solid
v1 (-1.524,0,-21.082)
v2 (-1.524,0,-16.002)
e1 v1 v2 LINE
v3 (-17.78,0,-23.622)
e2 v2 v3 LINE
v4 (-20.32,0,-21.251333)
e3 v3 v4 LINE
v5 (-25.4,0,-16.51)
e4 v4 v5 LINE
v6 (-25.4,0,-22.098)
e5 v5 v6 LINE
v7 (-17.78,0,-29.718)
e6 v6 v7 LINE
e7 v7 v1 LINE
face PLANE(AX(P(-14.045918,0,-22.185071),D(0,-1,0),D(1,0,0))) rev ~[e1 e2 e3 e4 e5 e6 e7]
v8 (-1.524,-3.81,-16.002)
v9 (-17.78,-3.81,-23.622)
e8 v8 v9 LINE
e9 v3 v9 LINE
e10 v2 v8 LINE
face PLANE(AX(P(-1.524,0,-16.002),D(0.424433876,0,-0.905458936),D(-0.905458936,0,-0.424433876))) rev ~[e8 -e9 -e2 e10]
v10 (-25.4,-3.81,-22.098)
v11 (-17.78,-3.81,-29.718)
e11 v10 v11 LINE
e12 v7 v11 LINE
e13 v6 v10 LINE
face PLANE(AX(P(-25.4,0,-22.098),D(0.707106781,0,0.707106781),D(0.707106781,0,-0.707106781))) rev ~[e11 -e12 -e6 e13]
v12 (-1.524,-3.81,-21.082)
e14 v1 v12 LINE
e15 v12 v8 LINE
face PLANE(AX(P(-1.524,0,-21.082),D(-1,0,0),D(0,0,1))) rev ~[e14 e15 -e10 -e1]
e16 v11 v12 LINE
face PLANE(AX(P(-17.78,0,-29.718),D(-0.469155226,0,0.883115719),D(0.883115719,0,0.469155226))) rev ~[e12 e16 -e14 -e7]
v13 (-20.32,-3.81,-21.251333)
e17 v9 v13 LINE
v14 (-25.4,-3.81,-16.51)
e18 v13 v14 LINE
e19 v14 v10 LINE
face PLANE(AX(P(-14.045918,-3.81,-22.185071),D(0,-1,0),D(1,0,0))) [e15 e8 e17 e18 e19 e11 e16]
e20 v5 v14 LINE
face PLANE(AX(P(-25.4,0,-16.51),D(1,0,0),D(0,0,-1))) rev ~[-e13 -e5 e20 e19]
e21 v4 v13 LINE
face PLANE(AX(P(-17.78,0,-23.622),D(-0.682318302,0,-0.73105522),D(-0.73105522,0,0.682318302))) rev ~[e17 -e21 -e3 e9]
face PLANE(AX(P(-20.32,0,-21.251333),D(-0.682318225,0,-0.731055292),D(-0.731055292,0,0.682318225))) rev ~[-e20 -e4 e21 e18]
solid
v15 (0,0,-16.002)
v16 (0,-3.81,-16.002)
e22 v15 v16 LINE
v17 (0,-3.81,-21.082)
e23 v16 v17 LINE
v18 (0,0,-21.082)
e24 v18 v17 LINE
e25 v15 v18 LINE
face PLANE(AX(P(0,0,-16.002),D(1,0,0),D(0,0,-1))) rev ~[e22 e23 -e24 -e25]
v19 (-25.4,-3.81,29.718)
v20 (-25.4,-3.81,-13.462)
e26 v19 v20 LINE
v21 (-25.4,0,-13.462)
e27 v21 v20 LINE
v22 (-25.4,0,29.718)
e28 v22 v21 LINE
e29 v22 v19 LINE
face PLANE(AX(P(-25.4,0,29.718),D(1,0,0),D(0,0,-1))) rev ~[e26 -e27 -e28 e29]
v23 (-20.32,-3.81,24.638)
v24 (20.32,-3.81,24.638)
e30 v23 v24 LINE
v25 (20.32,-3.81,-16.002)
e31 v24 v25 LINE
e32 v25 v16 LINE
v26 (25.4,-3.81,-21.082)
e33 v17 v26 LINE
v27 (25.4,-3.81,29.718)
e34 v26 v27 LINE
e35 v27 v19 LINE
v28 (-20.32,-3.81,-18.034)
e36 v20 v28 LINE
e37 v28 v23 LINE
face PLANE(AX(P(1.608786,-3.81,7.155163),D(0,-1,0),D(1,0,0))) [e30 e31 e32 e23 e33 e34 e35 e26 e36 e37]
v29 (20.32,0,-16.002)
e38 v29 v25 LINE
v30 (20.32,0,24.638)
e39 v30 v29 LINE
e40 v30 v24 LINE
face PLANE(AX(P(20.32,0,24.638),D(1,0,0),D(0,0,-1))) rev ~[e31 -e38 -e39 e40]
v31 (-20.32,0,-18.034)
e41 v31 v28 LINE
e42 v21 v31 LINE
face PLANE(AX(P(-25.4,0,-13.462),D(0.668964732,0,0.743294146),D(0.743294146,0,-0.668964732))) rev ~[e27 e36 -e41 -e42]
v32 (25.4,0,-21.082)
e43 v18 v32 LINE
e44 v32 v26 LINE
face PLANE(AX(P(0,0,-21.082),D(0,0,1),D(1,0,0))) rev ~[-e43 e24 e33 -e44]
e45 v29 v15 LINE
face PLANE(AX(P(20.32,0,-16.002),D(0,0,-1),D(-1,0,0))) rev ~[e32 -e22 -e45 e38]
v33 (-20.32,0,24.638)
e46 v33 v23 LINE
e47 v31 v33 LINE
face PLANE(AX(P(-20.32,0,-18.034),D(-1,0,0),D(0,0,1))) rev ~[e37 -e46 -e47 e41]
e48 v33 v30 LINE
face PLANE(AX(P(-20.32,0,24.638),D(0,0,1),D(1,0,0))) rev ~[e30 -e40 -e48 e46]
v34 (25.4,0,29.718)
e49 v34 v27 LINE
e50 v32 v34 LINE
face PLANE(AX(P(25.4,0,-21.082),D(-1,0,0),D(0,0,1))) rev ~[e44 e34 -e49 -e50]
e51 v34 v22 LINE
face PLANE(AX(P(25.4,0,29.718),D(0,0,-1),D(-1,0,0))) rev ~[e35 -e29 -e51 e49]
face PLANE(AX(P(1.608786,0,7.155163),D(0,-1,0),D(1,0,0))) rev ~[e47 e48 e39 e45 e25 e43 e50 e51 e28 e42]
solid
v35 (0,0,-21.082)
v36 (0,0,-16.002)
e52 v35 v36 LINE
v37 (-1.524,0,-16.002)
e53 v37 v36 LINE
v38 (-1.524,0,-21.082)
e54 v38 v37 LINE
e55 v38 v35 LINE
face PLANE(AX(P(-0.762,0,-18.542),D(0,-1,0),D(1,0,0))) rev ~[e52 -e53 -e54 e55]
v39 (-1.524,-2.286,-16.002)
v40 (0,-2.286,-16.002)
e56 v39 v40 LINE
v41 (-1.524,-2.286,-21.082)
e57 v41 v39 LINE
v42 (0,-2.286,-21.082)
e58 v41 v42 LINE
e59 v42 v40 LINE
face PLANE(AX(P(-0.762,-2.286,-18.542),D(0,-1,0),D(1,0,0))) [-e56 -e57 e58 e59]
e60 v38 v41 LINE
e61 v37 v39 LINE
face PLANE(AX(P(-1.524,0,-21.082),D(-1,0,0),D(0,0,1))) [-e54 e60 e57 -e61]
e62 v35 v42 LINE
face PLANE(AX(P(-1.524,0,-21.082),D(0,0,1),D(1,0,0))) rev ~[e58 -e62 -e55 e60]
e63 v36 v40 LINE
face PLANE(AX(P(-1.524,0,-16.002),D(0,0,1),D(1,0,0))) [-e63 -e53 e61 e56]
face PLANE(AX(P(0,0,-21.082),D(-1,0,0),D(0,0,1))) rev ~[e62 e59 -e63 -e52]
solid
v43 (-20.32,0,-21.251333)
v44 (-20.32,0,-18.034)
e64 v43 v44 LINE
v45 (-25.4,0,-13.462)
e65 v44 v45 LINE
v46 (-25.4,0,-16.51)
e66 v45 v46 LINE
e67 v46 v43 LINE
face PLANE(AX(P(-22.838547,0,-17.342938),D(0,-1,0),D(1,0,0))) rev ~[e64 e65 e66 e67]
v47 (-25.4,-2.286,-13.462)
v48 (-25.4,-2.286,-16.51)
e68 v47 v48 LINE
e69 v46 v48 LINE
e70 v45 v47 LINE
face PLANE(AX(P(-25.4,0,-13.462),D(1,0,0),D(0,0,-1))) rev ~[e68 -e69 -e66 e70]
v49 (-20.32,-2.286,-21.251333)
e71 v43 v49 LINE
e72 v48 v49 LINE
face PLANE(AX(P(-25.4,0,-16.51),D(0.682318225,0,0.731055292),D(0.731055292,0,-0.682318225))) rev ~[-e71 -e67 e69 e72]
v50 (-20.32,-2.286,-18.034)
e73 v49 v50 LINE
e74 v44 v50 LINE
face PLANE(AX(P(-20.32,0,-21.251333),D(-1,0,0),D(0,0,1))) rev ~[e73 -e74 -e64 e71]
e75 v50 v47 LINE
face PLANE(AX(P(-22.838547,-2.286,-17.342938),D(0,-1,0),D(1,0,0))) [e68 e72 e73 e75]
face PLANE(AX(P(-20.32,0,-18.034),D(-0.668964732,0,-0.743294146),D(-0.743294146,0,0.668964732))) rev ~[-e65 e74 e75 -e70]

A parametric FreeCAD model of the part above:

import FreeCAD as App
import Part
import Sketcher

V = App.Vector
Q = App.Units.Quantity

doc = App.newDocument("Part")
params = doc.addObject("Spreadsheet::Sheet", "Params")
for row, (alias, value) in enumerate([
    ("sketch1_width", "2 in"),
    ("sketch1_width2", "1 in"),
    ("sketch1_width3", "1.6 in"),
    ("sketch1_width4", "0.8 in"),
    ("sketch1_height", "1.7 in"),
    ("pad1_length", "0.15 in"),
    ("sketch2_height", "0.2 in"),
    ("sketch2_width", "0.06 in"),
    ("sketch2_height2", "0.12 in"),
    ("pad2_length", "0.09 in"),
], start=1):
    params.set(f"A{row}", alias)
    params.set(f"B{row}", "=" + value)
    params.setAlias(f"B{row}", alias)

body = doc.addObject("PartDesign::Body", "Body")
body.AllowCompound = True

sketch1 = body.newObject("Sketcher::SketchObject", "Sketch")
sketch1.AttachmentSupport = (doc.getObject("XZ_Plane"), [""])
sketch1.MapMode = "FlatFace"
sketch1.addGeometry([
    Part.LineSegment(V(25.4, 29.718, 0), V(-25.4, 29.718, 0)),
    Part.LineSegment(V(-25.4, 29.718, 0), V(-25.4, -13.462, 0)),
    Part.LineSegment(V(-25.4, -13.462, 0), V(-20.32, -18.034, 0)),
    Part.LineSegment(V(-20.32, -18.034, 0), V(-20.32, 24.638, 0)),
    Part.LineSegment(V(-20.32, 24.638, 0), V(20.32, 24.638, 0)),
    Part.LineSegment(V(20.32, 24.638, 0), V(20.32, -16.002, 0)),
    Part.LineSegment(V(20.32, -16.002, 0), V(0, -16.002, 0)),
    Part.LineSegment(V(0, -16.002, 0), V(0, -21.082, 0)),
    Part.LineSegment(V(0, -21.082, 0), V(25.4, -21.082, 0)),
    Part.LineSegment(V(25.4, -21.082, 0), V(25.4, 29.718, 0)),
    Part.LineSegment(V(-20.32, -21.251333, 0), V(-25.4, -16.51, 0)),
    Part.LineSegment(V(-25.4, -16.51, 0), V(-25.4, -22.098, 0)),
    Part.LineSegment(V(-25.4, -22.098, 0), V(-17.78, -29.718, 0)),
    Part.LineSegment(V(-17.78, -29.718, 0), V(-1.524, -21.082, 0)),
    Part.LineSegment(V(-1.524, -21.082, 0), V(-1.524, -16.002, 0)),
    Part.LineSegment(V(-1.524, -16.002, 0), V(-17.78, -23.622, 0)),
    Part.LineSegment(V(-17.78, -23.622, 0), V(-20.32, -21.251333, 0)),
], False)
sketch1.addConstraint([
    Sketcher.Constraint("Coincident", 0, 2, 1, 1),
    Sketcher.Constraint("Coincident", 1, 2, 2, 1),
    Sketcher.Constraint("Coincident", 2, 2, 3, 1),
    Sketcher.Constraint("Coincident", 3, 2, 4, 1),
    Sketcher.Constraint("Coincident", 4, 2, 5, 1),
    Sketcher.Constraint("Coincident", 5, 2, 6, 1),
    Sketcher.Constraint("Coincident", 6, 2, 7, 1),
    Sketcher.Constraint("Coincident", 7, 2, 8, 1),
    Sketcher.Constraint("Coincident", 8, 2, 9, 1),
    Sketcher.Constraint("Coincident", 9, 2, 0, 1),
    Sketcher.Constraint("Coincident", 10, 2, 11, 1),
    Sketcher.Constraint("Coincident", 11, 2, 12, 1),
    Sketcher.Constraint("Coincident", 12, 2, 13, 1),
    Sketcher.Constraint("Coincident", 13, 2, 14, 1),
    Sketcher.Constraint("Coincident", 14, 2, 15, 1),
    Sketcher.Constraint("Coincident", 15, 2, 16, 1),
    Sketcher.Constraint("Coincident", 16, 2, 10, 1),
    Sketcher.Constraint("Horizontal", 0),
    Sketcher.Constraint("Vertical", 1),
    Sketcher.Constraint("Vertical", 3),
    Sketcher.Constraint("Horizontal", 4),
    Sketcher.Constraint("Vertical", 5),
    Sketcher.Constraint("Horizontal", 6),
    Sketcher.Constraint("Vertical", 7),
    Sketcher.Constraint("Horizontal", 8),
    Sketcher.Constraint("Vertical", 9),
    Sketcher.Constraint("Vertical", 11),
    Sketcher.Constraint("Vertical", 14),
    Sketcher.Constraint("PointOnObject", 6, 2, -2),
    Sketcher.Constraint("Parallel", 10, 16),
    Sketcher.Constraint("Horizontal", 8, 2, 13, 2),
    Sketcher.Constraint("Horizontal", 6, 2, 14, 2),
    Sketcher.Constraint("Vertical", 1, 2, 10, 2),
    Sketcher.Constraint("Vertical", 12, 2, 15, 2),
    Sketcher.Constraint("Vertical", 3, 2, 16, 2),
    Sketcher.Constraint("Equal", 4, 5),
    Sketcher.Constraint("Equal", 0, 9),
    Sketcher.Constraint("DistanceX", 0, 2, 0, 1, Q("2 in")),
    Sketcher.Constraint("DistanceX", 8, 1, 8, 2, Q("1 in")),
    Sketcher.Constraint("DistanceX", 4, 1, 4, 2, Q("1.6 in")),
    Sketcher.Constraint("DistanceX", 6, 2, 6, 1, Q("0.8 in")),
    Sketcher.Constraint("DistanceY", 1, 2, 1, 1, Q("1.7 in")),
    Sketcher.Constraint("DistanceY", 7, 2, 7, 1, Q("0.2 in")),
    Sketcher.Constraint("Angle", 12, Q("-45 deg")),
    Sketcher.Constraint("DistanceY", 3, 1, 3, 2, Q("1.68 in")),
    Sketcher.Constraint("DistanceY", 11, 2, 11, 1, Q("0.22 in")),
    Sketcher.Constraint("DistanceX", 12, 2, -1, 1, Q("0.7 in")),
    Sketcher.Constraint("DistanceY", 15, 2, 1, 2, Q("0.4 in")),
    Sketcher.Constraint("DistanceY", -1, 1, 0, 2, Q("1.17 in")),
    Sketcher.Constraint("DistanceY", 10, 2, -1, 1, Q("0.65 in")),
    Sketcher.Constraint("DistanceX", 13, 2, -1, 1, Q("0.06 in")),
])
sketch1.setExpression("Constraints[37]", "Params.sketch1_width")
sketch1.setExpression("Constraints[38]", "Params.sketch1_width2")
sketch1.setExpression("Constraints[39]", "Params.sketch1_width3")
sketch1.setExpression("Constraints[40]", "Params.sketch1_width4")
sketch1.setExpression("Constraints[41]", "Params.sketch1_height")
pad1 = body.newObject("PartDesign::Pad", "Pad")
pad1.Profile = sketch1
pad1.setExpression("Length", "Params.pad1_length")
body2 = doc.addObject("PartDesign::Body", "Body001")
body2.AllowCompound = True

sketch2 = body2.newObject("Sketcher::SketchObject", "Sketch001")
sketch2.AttachmentSupport = (doc.getObject("XZ_Plane001"), [""])
sketch2.MapMode = "FlatFace"
sketch2.addGeometry([
    Part.LineSegment(V(-20.32, -18.034, 0), V(-25.4, -13.462, 0)),
    Part.LineSegment(V(-25.4, -13.462, 0), V(-25.4, -16.51, 0)),
    Part.LineSegment(V(-25.4, -16.51, 0), V(-20.32, -21.251333, 0)),
    Part.LineSegment(V(-20.32, -21.251333, 0), V(-20.32, -18.034, 0)),
    Part.LineSegment(V(-1.524, -16.002, 0), V(-1.524, -21.082, 0)),
    Part.LineSegment(V(-1.524, -21.082, 0), V(0, -21.082, 0)),
    Part.LineSegment(V(0, -21.082, 0), V(0, -16.002, 0)),
    Part.LineSegment(V(0, -16.002, 0), V(-1.524, -16.002, 0)),
], False)
sketch2.addConstraint([
    Sketcher.Constraint("Coincident", 0, 2, 1, 1),
    Sketcher.Constraint("Coincident", 1, 2, 2, 1),
    Sketcher.Constraint("Coincident", 2, 2, 3, 1),
    Sketcher.Constraint("Coincident", 3, 2, 0, 1),
    Sketcher.Constraint("Coincident", 4, 2, 5, 1),
    Sketcher.Constraint("Coincident", 5, 2, 6, 1),
    Sketcher.Constraint("Coincident", 6, 2, 7, 1),
    Sketcher.Constraint("Coincident", 7, 2, 4, 1),
    Sketcher.Constraint("Vertical", 1),
    Sketcher.Constraint("Vertical", 3),
    Sketcher.Constraint("Vertical", 4),
    Sketcher.Constraint("Horizontal", 5),
    Sketcher.Constraint("Vertical", 6),
    Sketcher.Constraint("Horizontal", 7),
    Sketcher.Constraint("PointOnObject", 5, 2, -2),
    Sketcher.Constraint("DistanceY", 4, 2, 4, 1, Q("0.2 in")),
    Sketcher.Constraint("DistanceX", 0, 2, -1, 1, Q("1 in")),
    Sketcher.Constraint("DistanceX", 5, 1, 5, 2, Q("0.06 in")),
    Sketcher.Constraint("DistanceY", 1, 2, 1, 1, Q("0.12 in")),
    Sketcher.Constraint("DistanceX", 2, 2, -1, 1, Q("0.8 in")),
    Sketcher.Constraint("DistanceY", 4, 2, 0, 2, Q("0.3 in")),
    Sketcher.Constraint("DistanceY", 0, 2, -1, 1, Q("0.53 in")),
    Sketcher.Constraint("DistanceY", 3, 2, -1, 1, Q("0.71 in")),
    Sketcher.Constraint("Distance", 2, Q("6.948859 mm")),
])
sketch2.setExpression("Constraints[15]", "Params.sketch2_height")
sketch2.setExpression("Constraints[17]", "Params.sketch2_width")
sketch2.setExpression("Constraints[18]", "Params.sketch2_height2")
pad2 = body2.newObject("PartDesign::Pad", "Pad001")
pad2.Profile = sketch2
pad2.setExpression("Length", "Params.pad2_length")

doc.recompute()
